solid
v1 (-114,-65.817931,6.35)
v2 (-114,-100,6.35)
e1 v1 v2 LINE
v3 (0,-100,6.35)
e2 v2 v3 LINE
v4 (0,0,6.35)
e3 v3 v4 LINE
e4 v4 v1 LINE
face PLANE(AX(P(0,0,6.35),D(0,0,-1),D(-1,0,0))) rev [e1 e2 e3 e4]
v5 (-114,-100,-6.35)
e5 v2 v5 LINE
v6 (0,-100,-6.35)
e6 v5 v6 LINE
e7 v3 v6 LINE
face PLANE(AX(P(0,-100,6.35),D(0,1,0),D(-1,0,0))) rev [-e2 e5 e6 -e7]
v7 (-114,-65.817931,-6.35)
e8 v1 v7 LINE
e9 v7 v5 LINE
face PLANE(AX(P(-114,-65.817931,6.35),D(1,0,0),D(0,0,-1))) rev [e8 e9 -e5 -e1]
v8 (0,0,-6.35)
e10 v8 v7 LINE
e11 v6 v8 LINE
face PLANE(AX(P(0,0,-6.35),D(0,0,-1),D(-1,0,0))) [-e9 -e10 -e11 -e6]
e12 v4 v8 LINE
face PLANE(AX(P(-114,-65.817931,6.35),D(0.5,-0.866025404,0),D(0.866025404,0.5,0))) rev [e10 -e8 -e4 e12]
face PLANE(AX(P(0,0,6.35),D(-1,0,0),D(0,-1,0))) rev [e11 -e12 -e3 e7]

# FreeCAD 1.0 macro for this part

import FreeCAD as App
import Part
import Sketcher
from FreeCAD import Vector
Q = App.Units.Quantity

doc = App.newDocument("Part")
body = doc.addObject("PartDesign::Body", "Body")

sketch1 = doc.addObject("Sketcher::SketchObject", "Sketch")
body.addObject(sketch1)
sketch1.AttachmentSupport = (doc.XY_Plane, [""])
sketch1.MapMode = "FlatFace"
sketch1.addGeometry([
    Part.LineSegment(Vector(0, -100, 0), Vector(0, 0, 0)),
    Part.LineSegment(Vector(0, 0, 0), Vector(-114, -66, 0)),
    Part.LineSegment(Vector(-114, -66, 0), Vector(-114, -100, 0)),
    Part.LineSegment(Vector(-114, -100, 0), Vector(0, -100, 0)),
], False)
sketch1.addConstraint([
    Sketcher.Constraint("Coincident", 0, 2, 1, 1),
    Sketcher.Constraint("Coincident", 1, 2, 2, 1),
    Sketcher.Constraint("Coincident", 2, 2, 3, 1),
    Sketcher.Constraint("Coincident", 3, 2, 0, 1),
    Sketcher.Constraint("Vertical", 0),
    Sketcher.Constraint("Vertical", 2),
    Sketcher.Constraint("Horizontal", 3),
    Sketcher.Constraint("Coincident", 0, 2, -1, 1),
    Sketcher.Constraint("DistanceX", 3, 1, 3, 2, Q("114 mm")),
    Sketcher.Constraint("DistanceY", 0, 1, 0, 2, Q("100 mm")),
    Sketcher.Constraint("Angle", 1, Q("-150 deg")),
])
pad1 = doc.addObject("PartDesign::Pad", "Pad")
body.addObject(pad1)
pad1.Profile = sketch1
pad1.Length = 12.7
pad1.Midplane = True

doc.recompute()
